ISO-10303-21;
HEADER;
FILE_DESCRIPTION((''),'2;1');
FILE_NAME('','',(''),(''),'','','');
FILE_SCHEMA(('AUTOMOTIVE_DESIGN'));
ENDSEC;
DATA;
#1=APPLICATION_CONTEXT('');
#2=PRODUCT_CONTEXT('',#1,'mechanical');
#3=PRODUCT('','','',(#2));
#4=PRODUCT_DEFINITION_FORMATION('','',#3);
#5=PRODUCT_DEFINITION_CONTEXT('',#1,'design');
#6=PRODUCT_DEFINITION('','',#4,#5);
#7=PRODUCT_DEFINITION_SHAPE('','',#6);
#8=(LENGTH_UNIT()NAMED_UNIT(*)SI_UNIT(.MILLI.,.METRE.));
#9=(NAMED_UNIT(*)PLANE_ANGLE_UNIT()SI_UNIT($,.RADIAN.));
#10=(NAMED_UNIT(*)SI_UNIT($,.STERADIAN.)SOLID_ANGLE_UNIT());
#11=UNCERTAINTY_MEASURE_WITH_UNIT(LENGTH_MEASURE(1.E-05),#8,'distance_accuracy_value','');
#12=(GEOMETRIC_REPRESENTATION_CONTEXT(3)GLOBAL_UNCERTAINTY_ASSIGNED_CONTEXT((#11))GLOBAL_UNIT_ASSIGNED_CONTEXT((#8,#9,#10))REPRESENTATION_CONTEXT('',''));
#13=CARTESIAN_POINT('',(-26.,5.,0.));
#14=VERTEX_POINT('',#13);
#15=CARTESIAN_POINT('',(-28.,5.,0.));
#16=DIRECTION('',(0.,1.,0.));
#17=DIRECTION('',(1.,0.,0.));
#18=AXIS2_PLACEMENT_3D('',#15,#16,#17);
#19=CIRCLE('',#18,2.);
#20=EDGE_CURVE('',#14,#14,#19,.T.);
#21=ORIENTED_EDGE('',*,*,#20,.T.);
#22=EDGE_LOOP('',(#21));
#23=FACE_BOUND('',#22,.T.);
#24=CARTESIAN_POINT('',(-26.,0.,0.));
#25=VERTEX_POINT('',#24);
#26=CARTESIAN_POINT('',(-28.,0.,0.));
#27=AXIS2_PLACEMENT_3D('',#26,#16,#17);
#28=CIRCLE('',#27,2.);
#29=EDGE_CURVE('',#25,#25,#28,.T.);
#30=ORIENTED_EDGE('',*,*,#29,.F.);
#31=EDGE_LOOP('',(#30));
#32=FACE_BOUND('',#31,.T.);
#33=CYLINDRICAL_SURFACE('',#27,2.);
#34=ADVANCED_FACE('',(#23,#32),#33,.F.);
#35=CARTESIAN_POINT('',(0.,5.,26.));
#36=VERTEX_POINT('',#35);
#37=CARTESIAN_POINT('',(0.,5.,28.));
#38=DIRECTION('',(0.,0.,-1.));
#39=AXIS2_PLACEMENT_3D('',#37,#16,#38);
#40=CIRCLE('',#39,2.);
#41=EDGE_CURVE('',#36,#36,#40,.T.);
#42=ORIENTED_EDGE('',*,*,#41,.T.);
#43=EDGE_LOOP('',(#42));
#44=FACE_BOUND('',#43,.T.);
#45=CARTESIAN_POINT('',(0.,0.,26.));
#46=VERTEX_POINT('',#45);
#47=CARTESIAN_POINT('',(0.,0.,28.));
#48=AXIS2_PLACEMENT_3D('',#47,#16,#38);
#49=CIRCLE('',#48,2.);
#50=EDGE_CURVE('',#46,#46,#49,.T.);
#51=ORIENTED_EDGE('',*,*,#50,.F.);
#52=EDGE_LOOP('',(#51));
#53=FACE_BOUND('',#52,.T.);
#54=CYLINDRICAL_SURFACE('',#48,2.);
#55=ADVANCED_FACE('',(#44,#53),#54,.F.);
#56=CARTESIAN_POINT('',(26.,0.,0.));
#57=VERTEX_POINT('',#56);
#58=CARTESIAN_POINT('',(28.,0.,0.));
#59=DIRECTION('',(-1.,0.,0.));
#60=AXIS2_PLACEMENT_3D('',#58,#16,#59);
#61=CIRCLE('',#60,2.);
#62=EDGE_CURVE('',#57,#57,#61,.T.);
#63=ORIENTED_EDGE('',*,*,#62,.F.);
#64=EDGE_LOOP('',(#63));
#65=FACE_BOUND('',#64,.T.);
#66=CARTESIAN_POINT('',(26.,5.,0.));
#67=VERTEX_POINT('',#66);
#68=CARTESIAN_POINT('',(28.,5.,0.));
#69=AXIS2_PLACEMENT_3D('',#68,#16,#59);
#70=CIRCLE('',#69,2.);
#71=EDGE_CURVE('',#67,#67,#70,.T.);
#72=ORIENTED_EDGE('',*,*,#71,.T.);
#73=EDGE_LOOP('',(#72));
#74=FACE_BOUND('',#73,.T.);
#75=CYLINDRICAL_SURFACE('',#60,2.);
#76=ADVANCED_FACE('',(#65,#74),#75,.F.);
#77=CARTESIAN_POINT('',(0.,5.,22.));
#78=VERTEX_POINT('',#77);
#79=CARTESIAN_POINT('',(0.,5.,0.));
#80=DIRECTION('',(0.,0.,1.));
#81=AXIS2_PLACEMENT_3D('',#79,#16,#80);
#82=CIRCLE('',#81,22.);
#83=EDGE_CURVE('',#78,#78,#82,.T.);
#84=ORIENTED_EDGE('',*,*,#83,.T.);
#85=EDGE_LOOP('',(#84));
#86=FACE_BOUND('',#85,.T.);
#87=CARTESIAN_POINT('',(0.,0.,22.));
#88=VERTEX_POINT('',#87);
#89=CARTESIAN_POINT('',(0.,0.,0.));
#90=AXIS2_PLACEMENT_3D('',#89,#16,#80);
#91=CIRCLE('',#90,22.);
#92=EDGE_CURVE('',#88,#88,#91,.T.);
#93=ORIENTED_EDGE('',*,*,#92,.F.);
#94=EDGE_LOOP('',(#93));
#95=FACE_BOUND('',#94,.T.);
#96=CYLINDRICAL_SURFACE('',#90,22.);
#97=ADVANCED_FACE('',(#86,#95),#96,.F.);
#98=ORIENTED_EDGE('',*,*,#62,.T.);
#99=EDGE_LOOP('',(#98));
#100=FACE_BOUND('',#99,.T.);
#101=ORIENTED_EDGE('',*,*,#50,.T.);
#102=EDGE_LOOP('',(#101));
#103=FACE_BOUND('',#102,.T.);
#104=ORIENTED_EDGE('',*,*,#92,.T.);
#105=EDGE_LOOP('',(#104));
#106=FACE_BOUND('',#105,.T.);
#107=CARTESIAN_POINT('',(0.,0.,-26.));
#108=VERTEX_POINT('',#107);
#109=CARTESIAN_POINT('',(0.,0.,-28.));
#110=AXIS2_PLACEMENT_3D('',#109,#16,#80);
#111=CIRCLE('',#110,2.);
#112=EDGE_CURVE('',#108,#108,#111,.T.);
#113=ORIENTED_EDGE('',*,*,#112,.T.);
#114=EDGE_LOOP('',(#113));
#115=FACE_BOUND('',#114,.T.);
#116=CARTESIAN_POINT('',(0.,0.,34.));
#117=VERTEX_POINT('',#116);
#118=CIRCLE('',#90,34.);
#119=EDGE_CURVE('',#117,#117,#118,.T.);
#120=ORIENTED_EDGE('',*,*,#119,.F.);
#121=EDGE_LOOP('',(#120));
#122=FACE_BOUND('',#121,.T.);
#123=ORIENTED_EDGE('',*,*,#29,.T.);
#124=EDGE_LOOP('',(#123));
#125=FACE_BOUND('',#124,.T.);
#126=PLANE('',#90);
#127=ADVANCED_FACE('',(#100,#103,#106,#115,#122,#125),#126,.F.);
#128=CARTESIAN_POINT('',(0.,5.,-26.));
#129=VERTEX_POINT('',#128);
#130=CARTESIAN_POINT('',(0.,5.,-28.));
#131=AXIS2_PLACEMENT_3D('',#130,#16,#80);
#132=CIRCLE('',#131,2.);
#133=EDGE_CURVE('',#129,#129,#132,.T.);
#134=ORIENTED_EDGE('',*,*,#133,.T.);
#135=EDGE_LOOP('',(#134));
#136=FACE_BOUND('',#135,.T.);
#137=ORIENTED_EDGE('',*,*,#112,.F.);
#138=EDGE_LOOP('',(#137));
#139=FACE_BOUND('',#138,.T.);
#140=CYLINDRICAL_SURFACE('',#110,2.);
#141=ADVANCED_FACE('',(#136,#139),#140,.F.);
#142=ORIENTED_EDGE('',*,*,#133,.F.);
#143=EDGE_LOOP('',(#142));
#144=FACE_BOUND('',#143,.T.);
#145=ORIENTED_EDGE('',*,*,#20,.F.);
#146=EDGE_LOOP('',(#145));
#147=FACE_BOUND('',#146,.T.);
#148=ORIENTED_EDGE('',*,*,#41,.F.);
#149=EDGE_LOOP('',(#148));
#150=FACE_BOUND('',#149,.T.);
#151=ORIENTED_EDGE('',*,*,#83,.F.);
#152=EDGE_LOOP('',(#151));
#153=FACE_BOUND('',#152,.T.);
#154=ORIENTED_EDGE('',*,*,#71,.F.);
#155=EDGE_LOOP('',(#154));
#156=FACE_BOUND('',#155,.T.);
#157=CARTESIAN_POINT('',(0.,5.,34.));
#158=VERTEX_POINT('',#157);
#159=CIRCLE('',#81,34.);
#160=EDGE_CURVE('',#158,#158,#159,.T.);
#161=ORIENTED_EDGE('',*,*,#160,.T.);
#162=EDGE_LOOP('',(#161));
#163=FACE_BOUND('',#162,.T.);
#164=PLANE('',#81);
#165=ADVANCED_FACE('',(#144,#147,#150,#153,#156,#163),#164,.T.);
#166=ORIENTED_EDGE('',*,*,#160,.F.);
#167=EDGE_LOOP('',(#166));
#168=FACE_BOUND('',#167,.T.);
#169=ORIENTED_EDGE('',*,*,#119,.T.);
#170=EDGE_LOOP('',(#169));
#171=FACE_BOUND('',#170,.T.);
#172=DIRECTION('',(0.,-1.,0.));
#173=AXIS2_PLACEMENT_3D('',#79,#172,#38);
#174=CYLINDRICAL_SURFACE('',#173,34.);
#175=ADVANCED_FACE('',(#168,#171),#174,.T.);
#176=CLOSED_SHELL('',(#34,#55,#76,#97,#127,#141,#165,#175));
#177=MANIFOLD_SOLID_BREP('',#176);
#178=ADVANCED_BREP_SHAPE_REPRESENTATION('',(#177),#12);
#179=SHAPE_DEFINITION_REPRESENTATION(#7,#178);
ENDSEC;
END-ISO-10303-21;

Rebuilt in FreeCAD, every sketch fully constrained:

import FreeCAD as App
import Part
import Sketcher
from FreeCAD import Vector
Q = App.Units.Quantity

doc = App.newDocument("Part")
body = doc.addObject("PartDesign::Body", "Body")

sketch1 = body.newObject("Sketcher::SketchObject", "Sketch")
sketch1.AttachmentSupport = (doc.getObject("XZ_Plane"), [""])
sketch1.MapMode = "FlatFace"
sketch1.addGeometry(Part.Circle(Vector(0, 0, 0), Vector(0, 0, 1), 34), False)
sketch1.addConstraint([
    Sketcher.Constraint("Coincident", 0, 3, -1, 1),
    Sketcher.Constraint("Diameter", 0, Q("68 mm")),
])
pad1 = body.newObject("PartDesign::Pad", "Pad")
pad1.Profile = sketch1
pad1.Length = 5
pad1.Reversed = True

sketch2 = body.newObject("Sketcher::SketchObject", "Sketch001")
sketch2.AttachmentSupport = (doc.getObject("XZ_Plane"), [""])
sketch2.MapMode = "FlatFace"
sketch2.AttachmentOffset = App.Placement(Vector(0, 0, -5), App.Rotation())
sketch2.addGeometry(Part.Circle(Vector(0, 0, 0), Vector(0, 0, 1), 22), False)
sketch2.addConstraint([
    Sketcher.Constraint("Coincident", 0, 3, -1, 1),
    Sketcher.Constraint("Diameter", 0, Q("44 mm")),
])
pocket1 = body.newObject("PartDesign::Pocket", "Pocket")
pocket1.Profile = sketch2
pocket1.Length = 5
pocket1.Reversed = True

sketch3 = body.newObject("Sketcher::SketchObject", "Sketch002")
sketch3.AttachmentSupport = (doc.getObject("XZ_Plane"), [""])
sketch3.MapMode = "FlatFace"
sketch3.AttachmentOffset = App.Placement(Vector(0, 0, -5), App.Rotation())
sketch3.addGeometry(Part.Circle(Vector(0, -28, 0), Vector(0, 0, 1), 2), False)
sketch3.addConstraint([
    Sketcher.Constraint("PointOnObject", 0, 3, -2),
    Sketcher.Constraint("Diameter", 0, Q("4 mm")),
    Sketcher.Constraint("DistanceY", 0, 3, -1, 1, Q("28 mm")),
])
pocket2 = body.newObject("PartDesign::Pocket", "Pocket001")
pocket2.Profile = sketch3
pocket2.Length = 5
pocket2.Reversed = True
doc.recompute()

polarpattern = body.newObject("PartDesign::PolarPattern", "PolarPattern")
polarpattern.Originals = [pocket2]
polarpattern.Axis = (doc.getObject("Y_Axis"), [""])
polarpattern.Angle = 360
polarpattern.Occurrences = 4
body.Tip = polarpattern

doc.recompute()
